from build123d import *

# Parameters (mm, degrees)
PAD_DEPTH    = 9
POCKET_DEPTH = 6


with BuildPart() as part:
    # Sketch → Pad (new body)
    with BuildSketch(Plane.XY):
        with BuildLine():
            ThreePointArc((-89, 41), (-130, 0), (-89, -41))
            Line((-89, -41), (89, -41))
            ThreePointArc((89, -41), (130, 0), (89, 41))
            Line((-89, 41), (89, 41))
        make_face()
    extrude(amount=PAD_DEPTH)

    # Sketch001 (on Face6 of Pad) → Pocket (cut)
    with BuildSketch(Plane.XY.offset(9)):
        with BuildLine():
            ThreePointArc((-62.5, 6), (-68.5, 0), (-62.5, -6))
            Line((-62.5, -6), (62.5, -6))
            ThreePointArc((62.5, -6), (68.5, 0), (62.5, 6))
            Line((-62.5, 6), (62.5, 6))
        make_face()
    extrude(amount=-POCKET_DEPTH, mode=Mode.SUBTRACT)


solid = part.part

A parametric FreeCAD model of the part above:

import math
import FreeCAD as App
import Part
import Sketcher
Q = App.Units.Quantity

doc = App.newDocument("Part")
body = doc.addObject("PartDesign::Body", "Body")

sketch1 = body.newObject("Sketcher::SketchObject", "Sketch")
sketch1.AttachmentSupport = (doc.getObject("XY_Plane"), [""])
sketch1.MapMode = "FlatFace"
sketch1.addGeometry([
    Part.ArcOfCircle(Part.Circle(App.Vector(-89, 0, 0), App.Vector(0, 0, 1), 41), math.radians(90), math.radians(270)),
    Part.LineSegment(App.Vector(-89, -41, 0), App.Vector(89, -41, 0)),
    Part.ArcOfCircle(Part.Circle(App.Vector(89, 0, 0), App.Vector(0, 0, 1), 41), math.radians(-90), math.radians(90)),
    Part.LineSegment(App.Vector(89, 41, 0), App.Vector(-89, 41, 0)),
], False)
sketch1.addConstraint([
    Sketcher.Constraint("Tangent", 0, 2, 1, 1),
    Sketcher.Constraint("Tangent", 1, 2, 2, 1),
    Sketcher.Constraint("Tangent", 2, 2, 3, 1),
    Sketcher.Constraint("Tangent", 3, 2, 0, 1),
    Sketcher.Constraint("Horizontal", 1),
    Sketcher.Constraint("Horizontal", 3),
    Sketcher.Constraint("Symmetric", 0, 3, 2, 3, -1, 1),
    Sketcher.Constraint("Radius", 0, Q("41 mm")),
    Sketcher.Constraint("DistanceX", 1, 1, 1, 2, Q("178 mm")),
])
pad1 = body.newObject("PartDesign::Pad", "Pad")
pad1.Profile = sketch1
pad1.Length = 9

sketch2 = body.newObject("Sketcher::SketchObject", "Sketch001")
sketch2.AttachmentSupport = (doc.getObject("XY_Plane"), [""])
sketch2.MapMode = "FlatFace"
sketch2.AttachmentOffset = App.Placement(App.Vector(0, 0, 9), App.Rotation())
sketch2.addGeometry([
    Part.ArcOfCircle(Part.Circle(App.Vector(-62, 0, 0), App.Vector(0, 0, 1), 6), math.radians(90), math.radians(270)),
    Part.LineSegment(App.Vector(-62, -6, 0), App.Vector(62, -6, 0)),
    Part.ArcOfCircle(Part.Circle(App.Vector(62, 0, 0), App.Vector(0, 0, 1), 6), math.radians(-90), math.radians(90)),
    Part.LineSegment(App.Vector(62, 6, 0), App.Vector(-62, 6, 0)),
], False)
sketch2.addConstraint([
    Sketcher.Constraint("Tangent", 0, 2, 1, 1),
    Sketcher.Constraint("Tangent", 1, 2, 2, 1),
    Sketcher.Constraint("Tangent", 2, 2, 3, 1),
    Sketcher.Constraint("Tangent", 3, 2, 0, 1),
    Sketcher.Constraint("Horizontal", 1),
    Sketcher.Constraint("Horizontal", 3),
    Sketcher.Constraint("Symmetric", 0, 3, 2, 3, -1, 1),
    Sketcher.Constraint("Radius", 0, Q("6 mm")),
    Sketcher.Constraint("DistanceX", 1, 1, 1, 2, Q("125 mm")),
])
pocket1 = body.newObject("PartDesign::Pocket", "Pocket")
pocket1.Profile = sketch2
pocket1.Length = 6

doc.recompute()
